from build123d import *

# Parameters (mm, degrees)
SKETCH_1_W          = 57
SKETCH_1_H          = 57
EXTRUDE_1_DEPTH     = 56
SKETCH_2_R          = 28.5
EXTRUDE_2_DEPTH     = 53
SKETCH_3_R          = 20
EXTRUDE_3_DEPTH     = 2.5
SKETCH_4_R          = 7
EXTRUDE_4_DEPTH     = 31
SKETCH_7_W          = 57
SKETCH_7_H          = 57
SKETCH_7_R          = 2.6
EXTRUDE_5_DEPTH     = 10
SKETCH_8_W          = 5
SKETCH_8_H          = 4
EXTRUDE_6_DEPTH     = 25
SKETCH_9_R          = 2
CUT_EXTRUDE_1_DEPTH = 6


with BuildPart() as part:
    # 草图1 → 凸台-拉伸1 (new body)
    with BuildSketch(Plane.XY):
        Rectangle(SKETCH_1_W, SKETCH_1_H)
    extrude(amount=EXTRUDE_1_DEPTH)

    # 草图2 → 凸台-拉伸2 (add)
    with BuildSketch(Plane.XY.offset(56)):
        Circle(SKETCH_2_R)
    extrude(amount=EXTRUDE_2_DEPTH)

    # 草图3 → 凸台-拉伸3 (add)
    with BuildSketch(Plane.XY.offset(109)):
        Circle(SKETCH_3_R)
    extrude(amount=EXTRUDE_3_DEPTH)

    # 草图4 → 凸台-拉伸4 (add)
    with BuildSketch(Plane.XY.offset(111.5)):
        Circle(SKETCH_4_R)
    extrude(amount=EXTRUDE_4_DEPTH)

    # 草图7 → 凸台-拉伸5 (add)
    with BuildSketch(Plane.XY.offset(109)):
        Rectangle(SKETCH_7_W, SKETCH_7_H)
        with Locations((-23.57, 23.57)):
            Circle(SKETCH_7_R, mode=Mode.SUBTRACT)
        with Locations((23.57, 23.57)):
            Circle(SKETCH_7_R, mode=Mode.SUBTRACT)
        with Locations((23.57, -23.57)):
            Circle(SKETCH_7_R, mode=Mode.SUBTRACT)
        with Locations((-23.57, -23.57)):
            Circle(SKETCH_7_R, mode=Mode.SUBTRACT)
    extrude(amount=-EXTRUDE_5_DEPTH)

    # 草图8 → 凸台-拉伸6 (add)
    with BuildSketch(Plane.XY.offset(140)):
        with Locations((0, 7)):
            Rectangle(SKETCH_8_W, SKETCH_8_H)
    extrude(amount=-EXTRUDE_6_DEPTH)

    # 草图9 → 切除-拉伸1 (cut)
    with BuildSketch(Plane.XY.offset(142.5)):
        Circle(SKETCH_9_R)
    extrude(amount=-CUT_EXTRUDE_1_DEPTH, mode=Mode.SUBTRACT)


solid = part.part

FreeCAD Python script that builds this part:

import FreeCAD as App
import Part
import Sketcher
Q = App.Units.Quantity


def add_polygon(sketch, points):
    """Adds a closed chain of lines whose ends are joined by coincident constraints."""
    first, n = sketch.GeometryCount, len(points)
    for a, b in zip(points, points[1:] + points[:1]):
        sketch.addGeometry(Part.LineSegment(App.Vector(*a, 0), App.Vector(*b, 0)), False)
    for i in range(n):
        sketch.addConstraint(Sketcher.Constraint("Coincident", first + i, 2, first + (i + 1) % n, 1))

doc = App.newDocument("Part")
body = doc.addObject("PartDesign::Body", "Body")

# Sketch on XY plane
sketch1 = doc.addObject("Sketcher::SketchObject", "Sketch")
body.addObject(sketch1)
sketch1.AttachmentSupport = (doc.XY_Plane, [""])
sketch1.MapMode = "FlatFace"
add_polygon(sketch1, [(-28.5, 28.5), (-28.5, -28.5), (28.5, -28.5), (28.5, 28.5)])  # lines 0-3
sketch1.addConstraint([
    Sketcher.Constraint("Vertical", 0),
    Sketcher.Constraint("Horizontal", 1),
    Sketcher.Constraint("Vertical", 2),
    Sketcher.Constraint("Horizontal", 3),
    Sketcher.Constraint("Symmetric", 0, 2, 2, 2, -1, 1),
    Sketcher.Constraint("Equal", 3, 0),
    Sketcher.Constraint("DistanceX", 1, 1, 1, 2, Q("57 mm")),
])
pad1 = doc.addObject("PartDesign::Pad", "Pad")
body.addObject(pad1)
pad1.Profile = sketch1
pad1.Length = 56

# Sketch on XY plane
sketch2 = doc.addObject("Sketcher::SketchObject", "Sketch001")
body.addObject(sketch2)
sketch2.AttachmentSupport = (doc.XY_Plane, [""])
sketch2.MapMode = "FlatFace"
sketch2.AttachmentOffset = App.Placement(App.Vector(0, 0, 56), App.Rotation())
sketch2.addGeometry(Part.Circle(App.Vector(0, 0, 0), App.Vector(0, 0, 1), 28.5), False)
sketch2.addConstraint([
    Sketcher.Constraint("Coincident", 0, 3, -1, 1),
    Sketcher.Constraint("Diameter", 0, Q("57 mm")),
])
pad2 = doc.addObject("PartDesign::Pad", "Pad001")
body.addObject(pad2)
pad2.Profile = sketch2
pad2.Length = 53

# Sketch on XY plane
sketch3 = doc.addObject("Sketcher::SketchObject", "Sketch002")
body.addObject(sketch3)
sketch3.AttachmentSupport = (doc.XY_Plane, [""])
sketch3.MapMode = "FlatFace"
sketch3.AttachmentOffset = App.Placement(App.Vector(0, 0, 109), App.Rotation())
sketch3.addGeometry(Part.Circle(App.Vector(0, 0, 0), App.Vector(0, 0, 1), 20), False)
sketch3.addConstraint([
    Sketcher.Constraint("Coincident", 0, 3, -1, 1),
    Sketcher.Constraint("Diameter", 0, Q("40 mm")),
])
pad3 = doc.addObject("PartDesign::Pad", "Pad002")
body.addObject(pad3)
pad3.Profile = sketch3
pad3.Length = 2.5

# Sketch on XY plane
sketch4 = doc.addObject("Sketcher::SketchObject", "Sketch003")
body.addObject(sketch4)
sketch4.AttachmentSupport = (doc.XY_Plane, [""])
sketch4.MapMode = "FlatFace"
sketch4.AttachmentOffset = App.Placement(App.Vector(0, 0, 111.5), App.Rotation())
sketch4.addGeometry(Part.Circle(App.Vector(0, 0, 0), App.Vector(0, 0, 1), 7), False)
sketch4.addConstraint([
    Sketcher.Constraint("Coincident", 0, 3, -1, 1),
    Sketcher.Constraint("Diameter", 0, Q("14 mm")),
])
pad4 = doc.addObject("PartDesign::Pad", "Pad003")
body.addObject(pad4)
pad4.Profile = sketch4
pad4.Length = 31

# Sketch on XY plane
sketch5 = doc.addObject("Sketcher::SketchObject", "Sketch004")
body.addObject(sketch5)
sketch5.AttachmentSupport = (doc.XY_Plane, [""])
sketch5.MapMode = "FlatFace"
sketch5.AttachmentOffset = App.Placement(App.Vector(0, 0, 109), App.Rotation())
add_polygon(sketch5, [(-28.5, 28.5), (-28.5, -28.5), (28.5, -28.5), (28.5, 28.5)])  # lines 0-3
sketch5.addGeometry(Part.Circle(App.Vector(-23.57, -23.57, 0), App.Vector(0, 0, 1), 2.6), False)  # 4
sketch5.addGeometry(Part.Circle(App.Vector(23.57, -23.57, 0), App.Vector(0, 0, 1), 2.6), False)  # 5
sketch5.addGeometry(Part.Circle(App.Vector(-23.57, 23.57, 0), App.Vector(0, 0, 1), 2.6), False)  # 6
sketch5.addGeometry(Part.Circle(App.Vector(23.57, 23.57, 0), App.Vector(0, 0, 1), 2.6), False)  # 7
sketch5.addConstraint([
    Sketcher.Constraint("Vertical", 0),
    Sketcher.Constraint("Horizontal", 1),
    Sketcher.Constraint("Vertical", 2),
    Sketcher.Constraint("Horizontal", 3),
    Sketcher.Constraint("Equal", 4, 5),
    Sketcher.Constraint("Equal", 5, 6),
    Sketcher.Constraint("Equal", 6, 7),
    Sketcher.Constraint("Symmetric", 5, 3, 6, 3, -1, 1),
    Sketcher.Constraint("Symmetric", 4, 3, 7, 3, -1, 1),
    Sketcher.Constraint("Symmetric", 0, 2, 2, 2, -1, 1),
    Sketcher.Constraint("Symmetric", 4, 3, 5, 3, -2),
    Sketcher.Constraint("Equal", 3, 0),
    Sketcher.Constraint("Diameter", 4, Q("5.2 mm")),
    Sketcher.Constraint("DistanceX", 1, 1, 1, 2, Q("57 mm")),
    Sketcher.Constraint("DistanceX", 4, 3, -1, 1, Q("23.57 mm")),
    Sketcher.Constraint("DistanceY", 4, 3, -1, 1, Q("23.57 mm")),
])
pad5 = doc.addObject("PartDesign::Pad", "Pad004")
body.addObject(pad5)
pad5.Profile = sketch5
pad5.Length = 10
pad5.Reversed = True

# Sketch on XY plane
sketch6 = doc.addObject("Sketcher::SketchObject", "Sketch005")
body.addObject(sketch6)
sketch6.AttachmentSupport = (doc.XY_Plane, [""])
sketch6.MapMode = "FlatFace"
sketch6.AttachmentOffset = App.Placement(App.Vector(0, 0, 140), App.Rotation())
add_polygon(sketch6, [(-2.5, 9), (-2.5, 5), (2.5, 5), (2.5, 9)])  # lines 0-3
sketch6.addConstraint([
    Sketcher.Constraint("Vertical", 0),
    Sketcher.Constraint("Horizontal", 1),
    Sketcher.Constraint("Vertical", 2),
    Sketcher.Constraint("Horizontal", 3),
    Sketcher.Constraint("DistanceX", 1, 1, 1, 2, Q("5 mm")),
    Sketcher.Constraint("DistanceY", 0, 2, 0, 1, Q("4 mm")),
    Sketcher.Constraint("DistanceY", -1, 1, 0, 2, Q("5 mm")),
    Sketcher.Constraint("DistanceX", 0, 2, -1, 1, Q("2.5 mm")),
])
pad6 = doc.addObject("PartDesign::Pad", "Pad005")
body.addObject(pad6)
pad6.Profile = sketch6
pad6.Length = 25
pad6.Reversed = True

# Sketch on XY plane
sketch7 = doc.addObject("Sketcher::SketchObject", "Sketch006")
body.addObject(sketch7)
sketch7.AttachmentSupport = (doc.XY_Plane, [""])
sketch7.MapMode = "FlatFace"
sketch7.AttachmentOffset = App.Placement(App.Vector(0, 0, 142.5), App.Rotation())
sketch7.addGeometry(Part.Circle(App.Vector(0, 0, 0), App.Vector(0, 0, 1), 2), False)
sketch7.addConstraint([
    Sketcher.Constraint("Coincident", 0, 3, -1, 1),
    Sketcher.Constraint("Diameter", 0, Q("4 mm")),
])
pocket1 = doc.addObject("PartDesign::Pocket", "Pocket")
body.addObject(pocket1)
pocket1.Profile = sketch7
pocket1.Length = 6

doc.recompute()
